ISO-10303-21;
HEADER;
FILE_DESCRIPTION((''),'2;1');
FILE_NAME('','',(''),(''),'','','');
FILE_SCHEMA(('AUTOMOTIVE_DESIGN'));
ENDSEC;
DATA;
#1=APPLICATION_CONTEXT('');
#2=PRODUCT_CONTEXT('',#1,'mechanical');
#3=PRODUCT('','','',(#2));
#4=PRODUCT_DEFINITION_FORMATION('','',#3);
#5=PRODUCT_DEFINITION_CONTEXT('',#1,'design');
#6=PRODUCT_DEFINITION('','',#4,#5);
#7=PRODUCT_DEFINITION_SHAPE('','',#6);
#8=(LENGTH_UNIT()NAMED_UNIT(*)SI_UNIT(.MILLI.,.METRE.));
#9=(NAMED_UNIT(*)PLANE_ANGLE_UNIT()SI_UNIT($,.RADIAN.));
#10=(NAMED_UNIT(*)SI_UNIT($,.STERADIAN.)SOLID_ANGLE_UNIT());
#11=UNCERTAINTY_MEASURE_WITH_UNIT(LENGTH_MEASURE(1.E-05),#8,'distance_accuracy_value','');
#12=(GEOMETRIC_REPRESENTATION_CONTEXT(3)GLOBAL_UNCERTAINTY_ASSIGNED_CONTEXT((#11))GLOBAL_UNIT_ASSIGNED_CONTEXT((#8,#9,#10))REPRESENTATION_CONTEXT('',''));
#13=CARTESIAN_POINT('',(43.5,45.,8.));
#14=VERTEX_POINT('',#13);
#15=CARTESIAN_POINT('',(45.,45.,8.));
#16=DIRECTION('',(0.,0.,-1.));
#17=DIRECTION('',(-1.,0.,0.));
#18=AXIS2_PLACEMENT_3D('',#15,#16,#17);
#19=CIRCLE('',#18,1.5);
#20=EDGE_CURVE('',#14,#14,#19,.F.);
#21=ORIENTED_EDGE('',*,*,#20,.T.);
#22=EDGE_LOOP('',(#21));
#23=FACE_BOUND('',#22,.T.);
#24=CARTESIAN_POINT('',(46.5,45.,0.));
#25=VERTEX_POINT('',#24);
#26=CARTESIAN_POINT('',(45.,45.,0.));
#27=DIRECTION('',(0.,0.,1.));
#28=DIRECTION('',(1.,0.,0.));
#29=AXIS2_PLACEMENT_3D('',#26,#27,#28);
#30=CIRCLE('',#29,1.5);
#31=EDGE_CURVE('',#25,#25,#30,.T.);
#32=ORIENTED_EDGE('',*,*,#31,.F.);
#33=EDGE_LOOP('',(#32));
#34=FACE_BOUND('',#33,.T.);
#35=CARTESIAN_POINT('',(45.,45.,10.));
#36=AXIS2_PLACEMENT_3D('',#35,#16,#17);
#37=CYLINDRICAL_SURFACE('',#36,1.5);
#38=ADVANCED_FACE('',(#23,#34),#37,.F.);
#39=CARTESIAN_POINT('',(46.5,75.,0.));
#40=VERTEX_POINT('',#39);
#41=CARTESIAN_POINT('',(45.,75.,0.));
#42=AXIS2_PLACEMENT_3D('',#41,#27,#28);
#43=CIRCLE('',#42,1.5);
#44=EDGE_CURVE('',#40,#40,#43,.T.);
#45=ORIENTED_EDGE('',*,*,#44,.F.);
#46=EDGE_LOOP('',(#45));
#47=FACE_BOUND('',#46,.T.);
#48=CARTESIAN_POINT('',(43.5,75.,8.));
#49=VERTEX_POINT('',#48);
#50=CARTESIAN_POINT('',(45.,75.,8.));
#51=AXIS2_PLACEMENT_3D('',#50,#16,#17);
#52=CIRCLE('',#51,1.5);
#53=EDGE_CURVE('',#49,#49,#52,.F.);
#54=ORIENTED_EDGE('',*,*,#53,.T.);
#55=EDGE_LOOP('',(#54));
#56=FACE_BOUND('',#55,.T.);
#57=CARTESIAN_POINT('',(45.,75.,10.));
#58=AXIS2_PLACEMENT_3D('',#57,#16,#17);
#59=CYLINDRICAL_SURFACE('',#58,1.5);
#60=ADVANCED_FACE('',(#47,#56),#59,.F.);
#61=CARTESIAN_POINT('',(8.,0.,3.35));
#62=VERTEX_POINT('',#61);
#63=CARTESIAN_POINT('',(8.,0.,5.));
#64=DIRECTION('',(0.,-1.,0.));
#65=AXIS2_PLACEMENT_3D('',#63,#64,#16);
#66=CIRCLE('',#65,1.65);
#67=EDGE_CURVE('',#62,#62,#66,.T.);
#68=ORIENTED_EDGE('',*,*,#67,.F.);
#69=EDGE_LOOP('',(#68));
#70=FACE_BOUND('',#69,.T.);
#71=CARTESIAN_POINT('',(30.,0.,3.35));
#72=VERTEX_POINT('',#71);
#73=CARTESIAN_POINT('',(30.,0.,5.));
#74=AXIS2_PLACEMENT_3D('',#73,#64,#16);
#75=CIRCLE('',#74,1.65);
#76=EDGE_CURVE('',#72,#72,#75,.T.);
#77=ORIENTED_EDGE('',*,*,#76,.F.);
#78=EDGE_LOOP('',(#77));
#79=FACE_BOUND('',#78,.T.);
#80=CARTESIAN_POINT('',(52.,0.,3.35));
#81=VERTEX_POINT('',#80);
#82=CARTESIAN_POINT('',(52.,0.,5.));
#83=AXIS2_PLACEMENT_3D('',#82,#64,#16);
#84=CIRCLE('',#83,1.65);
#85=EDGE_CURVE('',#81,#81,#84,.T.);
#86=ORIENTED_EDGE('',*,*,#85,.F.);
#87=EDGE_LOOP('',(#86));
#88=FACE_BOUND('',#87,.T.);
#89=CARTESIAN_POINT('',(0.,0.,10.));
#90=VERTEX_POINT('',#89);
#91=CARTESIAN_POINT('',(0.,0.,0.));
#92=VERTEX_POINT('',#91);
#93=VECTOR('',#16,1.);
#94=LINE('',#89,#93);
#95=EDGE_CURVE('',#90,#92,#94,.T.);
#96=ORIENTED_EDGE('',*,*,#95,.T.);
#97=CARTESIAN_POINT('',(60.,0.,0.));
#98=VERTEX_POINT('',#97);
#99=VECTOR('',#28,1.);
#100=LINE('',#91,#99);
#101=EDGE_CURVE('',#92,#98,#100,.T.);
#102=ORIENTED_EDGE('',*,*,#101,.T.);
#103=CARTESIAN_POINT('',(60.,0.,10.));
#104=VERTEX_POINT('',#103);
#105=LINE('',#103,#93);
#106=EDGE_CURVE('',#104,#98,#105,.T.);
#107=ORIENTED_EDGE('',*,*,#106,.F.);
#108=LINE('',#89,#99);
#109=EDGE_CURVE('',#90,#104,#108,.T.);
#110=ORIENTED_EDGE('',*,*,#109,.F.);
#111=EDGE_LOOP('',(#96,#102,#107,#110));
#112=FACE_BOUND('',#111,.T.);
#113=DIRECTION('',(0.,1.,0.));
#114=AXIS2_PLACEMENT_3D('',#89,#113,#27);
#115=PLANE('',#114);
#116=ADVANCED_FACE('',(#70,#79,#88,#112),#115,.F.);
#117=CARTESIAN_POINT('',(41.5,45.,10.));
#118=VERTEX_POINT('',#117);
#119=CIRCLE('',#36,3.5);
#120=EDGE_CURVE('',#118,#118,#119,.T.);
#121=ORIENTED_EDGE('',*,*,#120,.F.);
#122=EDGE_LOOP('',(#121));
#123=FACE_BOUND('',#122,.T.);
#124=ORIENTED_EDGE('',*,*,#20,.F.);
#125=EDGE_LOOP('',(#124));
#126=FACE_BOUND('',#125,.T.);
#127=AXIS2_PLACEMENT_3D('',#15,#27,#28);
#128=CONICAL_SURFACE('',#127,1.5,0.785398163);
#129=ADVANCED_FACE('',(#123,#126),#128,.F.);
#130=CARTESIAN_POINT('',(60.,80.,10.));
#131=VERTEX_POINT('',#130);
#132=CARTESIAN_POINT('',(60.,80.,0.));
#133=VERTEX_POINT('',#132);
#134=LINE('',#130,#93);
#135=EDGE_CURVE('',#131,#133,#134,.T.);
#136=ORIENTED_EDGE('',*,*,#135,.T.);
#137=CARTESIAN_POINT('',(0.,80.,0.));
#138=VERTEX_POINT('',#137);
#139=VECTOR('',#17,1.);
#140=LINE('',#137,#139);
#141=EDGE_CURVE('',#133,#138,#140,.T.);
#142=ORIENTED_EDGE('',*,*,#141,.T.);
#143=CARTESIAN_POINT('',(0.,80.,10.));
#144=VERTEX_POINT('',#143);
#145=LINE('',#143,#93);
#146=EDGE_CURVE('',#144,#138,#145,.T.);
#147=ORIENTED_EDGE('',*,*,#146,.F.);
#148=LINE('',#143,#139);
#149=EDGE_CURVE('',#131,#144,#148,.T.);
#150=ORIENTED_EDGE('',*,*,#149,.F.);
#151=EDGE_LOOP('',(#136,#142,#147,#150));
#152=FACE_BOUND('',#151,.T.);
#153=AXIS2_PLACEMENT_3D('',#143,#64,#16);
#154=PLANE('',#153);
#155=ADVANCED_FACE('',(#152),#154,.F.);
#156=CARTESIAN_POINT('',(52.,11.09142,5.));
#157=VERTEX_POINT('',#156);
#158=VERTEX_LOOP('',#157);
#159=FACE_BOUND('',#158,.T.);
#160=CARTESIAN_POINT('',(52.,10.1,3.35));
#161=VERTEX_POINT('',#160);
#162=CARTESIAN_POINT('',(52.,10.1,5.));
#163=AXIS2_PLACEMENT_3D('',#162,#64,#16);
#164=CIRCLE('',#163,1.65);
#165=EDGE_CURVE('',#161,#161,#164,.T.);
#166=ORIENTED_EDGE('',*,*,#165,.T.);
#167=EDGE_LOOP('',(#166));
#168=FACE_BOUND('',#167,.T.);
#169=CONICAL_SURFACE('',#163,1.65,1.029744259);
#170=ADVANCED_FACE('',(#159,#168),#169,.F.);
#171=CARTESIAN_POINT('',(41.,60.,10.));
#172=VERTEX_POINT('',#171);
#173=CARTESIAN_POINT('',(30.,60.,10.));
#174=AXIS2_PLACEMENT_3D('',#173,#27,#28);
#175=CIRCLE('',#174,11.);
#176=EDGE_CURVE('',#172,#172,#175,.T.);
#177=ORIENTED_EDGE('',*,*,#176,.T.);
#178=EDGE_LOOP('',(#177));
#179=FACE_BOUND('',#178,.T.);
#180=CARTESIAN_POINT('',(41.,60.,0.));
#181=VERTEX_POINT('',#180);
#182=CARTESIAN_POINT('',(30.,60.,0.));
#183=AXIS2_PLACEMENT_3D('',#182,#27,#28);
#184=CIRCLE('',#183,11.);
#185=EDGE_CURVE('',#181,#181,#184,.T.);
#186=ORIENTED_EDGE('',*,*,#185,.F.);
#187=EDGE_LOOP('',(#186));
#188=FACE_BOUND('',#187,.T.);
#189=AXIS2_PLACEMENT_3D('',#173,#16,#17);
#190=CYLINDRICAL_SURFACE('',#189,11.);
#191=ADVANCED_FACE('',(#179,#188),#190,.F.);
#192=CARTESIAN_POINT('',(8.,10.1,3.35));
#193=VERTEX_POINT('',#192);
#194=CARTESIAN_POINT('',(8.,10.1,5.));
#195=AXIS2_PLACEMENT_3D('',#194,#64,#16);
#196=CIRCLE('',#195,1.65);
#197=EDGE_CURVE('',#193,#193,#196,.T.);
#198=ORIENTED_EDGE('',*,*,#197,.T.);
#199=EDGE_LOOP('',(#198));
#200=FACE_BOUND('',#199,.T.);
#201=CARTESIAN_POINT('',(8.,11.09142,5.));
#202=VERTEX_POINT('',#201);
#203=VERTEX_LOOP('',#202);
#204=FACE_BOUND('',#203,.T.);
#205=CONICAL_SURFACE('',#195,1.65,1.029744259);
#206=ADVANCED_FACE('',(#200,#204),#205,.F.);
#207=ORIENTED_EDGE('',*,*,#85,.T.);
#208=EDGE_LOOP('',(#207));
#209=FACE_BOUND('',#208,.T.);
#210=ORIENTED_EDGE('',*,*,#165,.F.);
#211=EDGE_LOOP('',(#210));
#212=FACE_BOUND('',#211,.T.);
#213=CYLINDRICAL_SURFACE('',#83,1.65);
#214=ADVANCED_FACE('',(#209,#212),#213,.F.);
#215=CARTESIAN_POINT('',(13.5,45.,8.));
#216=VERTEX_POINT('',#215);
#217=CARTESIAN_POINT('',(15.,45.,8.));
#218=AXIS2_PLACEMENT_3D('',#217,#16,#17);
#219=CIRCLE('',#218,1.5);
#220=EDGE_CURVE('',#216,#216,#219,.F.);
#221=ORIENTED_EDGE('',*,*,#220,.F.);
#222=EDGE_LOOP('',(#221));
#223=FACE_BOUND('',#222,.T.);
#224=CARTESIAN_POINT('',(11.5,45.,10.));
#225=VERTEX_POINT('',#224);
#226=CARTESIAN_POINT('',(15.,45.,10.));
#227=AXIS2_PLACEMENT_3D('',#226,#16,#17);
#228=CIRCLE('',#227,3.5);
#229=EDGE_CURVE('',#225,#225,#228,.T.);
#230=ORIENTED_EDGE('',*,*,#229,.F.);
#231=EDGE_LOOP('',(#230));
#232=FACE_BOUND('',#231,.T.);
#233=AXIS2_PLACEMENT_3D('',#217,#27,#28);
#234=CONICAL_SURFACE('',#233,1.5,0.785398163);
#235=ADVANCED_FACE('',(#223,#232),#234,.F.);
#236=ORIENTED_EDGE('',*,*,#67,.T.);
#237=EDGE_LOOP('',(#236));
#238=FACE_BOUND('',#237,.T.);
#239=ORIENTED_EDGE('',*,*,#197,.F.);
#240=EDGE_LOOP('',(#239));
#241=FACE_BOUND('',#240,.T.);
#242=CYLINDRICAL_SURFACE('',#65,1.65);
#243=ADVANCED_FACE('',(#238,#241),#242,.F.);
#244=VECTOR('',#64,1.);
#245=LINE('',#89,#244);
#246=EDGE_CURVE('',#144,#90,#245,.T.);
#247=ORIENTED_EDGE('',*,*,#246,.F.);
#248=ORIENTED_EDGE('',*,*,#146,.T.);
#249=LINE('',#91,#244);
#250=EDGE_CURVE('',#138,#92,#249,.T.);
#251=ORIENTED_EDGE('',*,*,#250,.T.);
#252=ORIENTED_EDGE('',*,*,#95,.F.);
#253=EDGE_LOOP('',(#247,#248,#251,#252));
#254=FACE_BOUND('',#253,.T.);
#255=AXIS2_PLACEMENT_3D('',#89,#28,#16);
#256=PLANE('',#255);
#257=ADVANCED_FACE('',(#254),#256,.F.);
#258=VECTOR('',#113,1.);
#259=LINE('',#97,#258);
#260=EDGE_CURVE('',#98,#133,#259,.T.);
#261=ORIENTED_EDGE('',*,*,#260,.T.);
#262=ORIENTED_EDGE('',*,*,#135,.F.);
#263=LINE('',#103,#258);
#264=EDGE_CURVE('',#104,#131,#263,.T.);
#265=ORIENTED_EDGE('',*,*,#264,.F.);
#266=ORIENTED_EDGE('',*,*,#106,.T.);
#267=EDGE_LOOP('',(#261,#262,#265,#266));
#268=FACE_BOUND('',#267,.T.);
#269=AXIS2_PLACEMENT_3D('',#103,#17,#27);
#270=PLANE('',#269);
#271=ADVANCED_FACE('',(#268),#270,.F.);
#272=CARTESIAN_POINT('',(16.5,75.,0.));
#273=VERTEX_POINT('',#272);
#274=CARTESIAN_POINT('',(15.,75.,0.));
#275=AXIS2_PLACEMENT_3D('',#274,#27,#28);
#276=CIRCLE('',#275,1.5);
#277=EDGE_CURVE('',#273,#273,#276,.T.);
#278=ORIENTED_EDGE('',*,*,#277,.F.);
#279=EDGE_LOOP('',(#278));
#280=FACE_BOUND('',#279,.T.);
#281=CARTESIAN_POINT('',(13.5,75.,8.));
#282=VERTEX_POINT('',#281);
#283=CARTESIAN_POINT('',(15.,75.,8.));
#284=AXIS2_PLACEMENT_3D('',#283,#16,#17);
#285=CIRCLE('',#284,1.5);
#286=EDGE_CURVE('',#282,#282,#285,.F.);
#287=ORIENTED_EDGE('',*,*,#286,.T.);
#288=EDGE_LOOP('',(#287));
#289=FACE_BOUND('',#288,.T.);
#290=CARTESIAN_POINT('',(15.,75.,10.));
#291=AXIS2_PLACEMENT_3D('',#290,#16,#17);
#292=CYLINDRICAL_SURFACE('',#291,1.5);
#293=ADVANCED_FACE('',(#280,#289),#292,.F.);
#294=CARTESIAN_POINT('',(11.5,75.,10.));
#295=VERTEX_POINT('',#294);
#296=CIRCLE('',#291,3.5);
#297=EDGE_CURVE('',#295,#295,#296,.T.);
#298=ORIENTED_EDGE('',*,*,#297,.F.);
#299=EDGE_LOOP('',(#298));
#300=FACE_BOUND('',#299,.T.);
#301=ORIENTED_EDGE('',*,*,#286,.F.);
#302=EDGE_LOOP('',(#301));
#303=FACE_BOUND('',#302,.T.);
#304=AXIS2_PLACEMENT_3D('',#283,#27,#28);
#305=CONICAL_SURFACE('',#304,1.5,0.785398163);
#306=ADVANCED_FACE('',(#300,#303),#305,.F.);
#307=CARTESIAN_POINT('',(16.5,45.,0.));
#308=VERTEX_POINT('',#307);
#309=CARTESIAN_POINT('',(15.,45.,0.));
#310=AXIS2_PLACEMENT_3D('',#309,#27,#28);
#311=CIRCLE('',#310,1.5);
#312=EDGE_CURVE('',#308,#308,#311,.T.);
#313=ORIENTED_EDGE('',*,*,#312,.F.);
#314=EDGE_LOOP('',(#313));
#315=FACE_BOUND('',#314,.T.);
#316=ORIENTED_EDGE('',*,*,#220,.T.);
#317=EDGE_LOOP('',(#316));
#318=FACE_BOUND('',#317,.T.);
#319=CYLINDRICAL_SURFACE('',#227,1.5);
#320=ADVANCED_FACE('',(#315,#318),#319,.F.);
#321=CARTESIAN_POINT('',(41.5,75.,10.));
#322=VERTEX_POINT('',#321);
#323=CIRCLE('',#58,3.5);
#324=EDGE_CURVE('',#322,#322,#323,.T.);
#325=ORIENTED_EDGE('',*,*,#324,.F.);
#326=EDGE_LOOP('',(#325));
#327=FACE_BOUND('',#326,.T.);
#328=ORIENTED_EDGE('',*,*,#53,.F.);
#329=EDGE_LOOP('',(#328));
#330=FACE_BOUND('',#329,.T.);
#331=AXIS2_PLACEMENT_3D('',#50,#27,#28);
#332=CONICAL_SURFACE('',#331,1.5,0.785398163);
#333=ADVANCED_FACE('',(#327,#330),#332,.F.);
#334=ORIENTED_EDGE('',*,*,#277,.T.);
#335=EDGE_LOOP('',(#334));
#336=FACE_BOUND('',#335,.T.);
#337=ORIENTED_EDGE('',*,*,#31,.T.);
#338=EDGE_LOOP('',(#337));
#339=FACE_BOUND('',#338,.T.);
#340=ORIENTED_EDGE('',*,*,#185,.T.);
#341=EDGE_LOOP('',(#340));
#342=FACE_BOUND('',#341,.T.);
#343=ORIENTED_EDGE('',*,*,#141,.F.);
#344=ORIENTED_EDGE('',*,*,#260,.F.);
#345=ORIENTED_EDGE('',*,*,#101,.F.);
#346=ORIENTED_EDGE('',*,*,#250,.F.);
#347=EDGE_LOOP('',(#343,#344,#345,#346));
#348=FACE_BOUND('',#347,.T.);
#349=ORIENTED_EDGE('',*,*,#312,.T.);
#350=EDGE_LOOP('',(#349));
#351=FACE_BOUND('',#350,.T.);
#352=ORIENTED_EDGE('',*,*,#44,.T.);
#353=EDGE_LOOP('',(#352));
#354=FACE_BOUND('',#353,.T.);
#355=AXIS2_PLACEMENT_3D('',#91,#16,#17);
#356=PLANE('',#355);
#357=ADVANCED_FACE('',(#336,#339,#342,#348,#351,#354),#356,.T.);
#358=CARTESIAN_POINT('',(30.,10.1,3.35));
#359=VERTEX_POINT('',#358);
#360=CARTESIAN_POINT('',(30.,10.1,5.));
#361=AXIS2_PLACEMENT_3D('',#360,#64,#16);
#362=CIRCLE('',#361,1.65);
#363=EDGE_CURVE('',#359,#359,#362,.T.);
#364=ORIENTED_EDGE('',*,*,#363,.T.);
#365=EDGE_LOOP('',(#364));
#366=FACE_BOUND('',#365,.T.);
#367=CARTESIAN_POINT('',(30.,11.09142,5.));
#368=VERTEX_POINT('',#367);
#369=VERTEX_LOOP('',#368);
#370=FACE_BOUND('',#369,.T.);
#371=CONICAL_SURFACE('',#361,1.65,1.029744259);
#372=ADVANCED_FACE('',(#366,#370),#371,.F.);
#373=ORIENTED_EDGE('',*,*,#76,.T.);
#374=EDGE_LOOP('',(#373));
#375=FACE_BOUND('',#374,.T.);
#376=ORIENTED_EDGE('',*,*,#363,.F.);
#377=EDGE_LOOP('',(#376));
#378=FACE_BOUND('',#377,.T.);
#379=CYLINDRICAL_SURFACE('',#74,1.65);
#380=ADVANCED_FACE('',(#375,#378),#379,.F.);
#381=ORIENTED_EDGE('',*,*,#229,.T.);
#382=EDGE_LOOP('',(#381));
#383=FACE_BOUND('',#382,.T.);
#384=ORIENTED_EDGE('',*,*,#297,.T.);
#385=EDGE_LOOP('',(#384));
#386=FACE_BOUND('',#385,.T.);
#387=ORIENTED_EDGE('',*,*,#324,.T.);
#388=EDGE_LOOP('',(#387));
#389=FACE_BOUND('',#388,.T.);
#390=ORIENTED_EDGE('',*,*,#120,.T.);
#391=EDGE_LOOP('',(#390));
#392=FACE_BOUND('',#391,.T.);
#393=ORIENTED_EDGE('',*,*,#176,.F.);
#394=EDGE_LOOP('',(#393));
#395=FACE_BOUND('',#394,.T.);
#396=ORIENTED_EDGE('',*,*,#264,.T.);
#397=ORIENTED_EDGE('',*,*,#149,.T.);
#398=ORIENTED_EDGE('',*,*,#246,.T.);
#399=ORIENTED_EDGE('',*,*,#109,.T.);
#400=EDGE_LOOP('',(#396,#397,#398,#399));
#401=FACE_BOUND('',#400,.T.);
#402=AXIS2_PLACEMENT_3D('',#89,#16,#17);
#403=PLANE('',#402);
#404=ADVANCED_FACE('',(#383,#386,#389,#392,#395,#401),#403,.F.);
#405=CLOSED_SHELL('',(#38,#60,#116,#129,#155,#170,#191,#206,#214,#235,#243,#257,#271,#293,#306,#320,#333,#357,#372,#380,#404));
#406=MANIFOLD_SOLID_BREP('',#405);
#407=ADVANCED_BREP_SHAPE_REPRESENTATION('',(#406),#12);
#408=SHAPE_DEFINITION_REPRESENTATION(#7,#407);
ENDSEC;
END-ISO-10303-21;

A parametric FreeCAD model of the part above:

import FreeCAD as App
import Part
import Sketcher
from FreeCAD import Vector
Q = App.Units.Quantity


def edges_at(feature, points):
    """Names of the edges that pass closest to the given points."""
    edges = feature.Shape.Edges
    near = lambda p: min(range(len(edges)), key=lambda i: edges[i].distToShape(Part.Vertex(*p))[0])
    return sorted({f"Edge{near(p) + 1}" for p in points})


def add_polygon(sketch, points):
    """Adds a closed chain of lines whose ends are joined by coincident constraints."""
    first, n = sketch.GeometryCount, len(points)
    for a, b in zip(points, points[1:] + points[:1]):
        sketch.addGeometry(Part.LineSegment(App.Vector(*a, 0), App.Vector(*b, 0)), False)
    for i in range(n):
        sketch.addConstraint(Sketcher.Constraint("Coincident", first + i, 2, first + (i + 1) % n, 1))

doc = App.newDocument("Part")
body = doc.addObject("PartDesign::Body", "Body")

# Sketch on XY plane
sketch1 = body.newObject("Sketcher::SketchObject", "Sketch")
sketch1.AttachmentSupport = (doc.getObject("XY_Plane"), [""])
sketch1.MapMode = "FlatFace"
add_polygon(sketch1, [(0, 80), (0, 0), (60, 0), (60, 80)])  # lines 0-3
sketch1.addGeometry(Part.Circle(Vector(15, 45, 0), Vector(0, 0, 1), 1.5), False)  # 4
sketch1.addGeometry(Part.Circle(Vector(45, 45, 0), Vector(0, 0, 1), 1.5), False)  # 5
sketch1.addGeometry(Part.Circle(Vector(15, 75, 0), Vector(0, 0, 1), 1.5), False)  # 6
sketch1.addGeometry(Part.Circle(Vector(30, 60, 0), Vector(0, 0, 1), 11), False)  # 7
sketch1.addGeometry(Part.Circle(Vector(45, 75, 0), Vector(0, 0, 1), 1.5), False)  # 8
sketch1.addConstraint([
    Sketcher.Constraint("Vertical", 0),
    Sketcher.Constraint("Horizontal", 1),
    Sketcher.Constraint("Vertical", 2),
    Sketcher.Constraint("Horizontal", 3),
    Sketcher.Constraint("Coincident", 0, 2, -1, 1),
    Sketcher.Constraint("Equal", 4, 5),
    Sketcher.Constraint("Equal", 5, 6),
    Sketcher.Constraint("Equal", 6, 8),
    Sketcher.Constraint("Horizontal", 4, 3, 5, 3),
    Sketcher.Constraint("Horizontal", 6, 3, 8, 3),
    Sketcher.Constraint("Vertical", 4, 3, 6, 3),
    Sketcher.Constraint("Vertical", 5, 3, 8, 3),
    Sketcher.Constraint("Diameter", 4, Q("3 mm")),
    Sketcher.Constraint("Diameter", 7, Q("22 mm")),
    Sketcher.Constraint("DistanceX", 1, 1, 1, 2, Q("60 mm")),
    Sketcher.Constraint("DistanceY", 0, 2, 0, 1, Q("80 mm")),
    Sketcher.Constraint("DistanceX", -1, 1, 4, 3, Q("15 mm")),
    Sketcher.Constraint("DistanceY", -1, 1, 4, 3, Q("45 mm")),
    Sketcher.Constraint("DistanceX", -1, 1, 5, 3, Q("45 mm")),
    Sketcher.Constraint("DistanceY", -1, 1, 6, 3, Q("75 mm")),
    Sketcher.Constraint("DistanceX", -1, 1, 7, 3, Q("30 mm")),
    Sketcher.Constraint("DistanceY", -1, 1, 7, 3, Q("60 mm")),
])
pad1 = body.newObject("PartDesign::Pad", "Pad")
pad1.Profile = sketch1
pad1.Length = 10

# Sketch on XZ plane
sketch2 = body.newObject("Sketcher::SketchObject", "Sketch001")
sketch2.AttachmentSupport = (doc.getObject("XZ_Plane"), [""])
sketch2.MapMode = "FlatFace"
sketch2.addGeometry([
    Part.Circle(Vector(8, 5, 0), Vector(0, 0, 1), 1.6),
    Part.Circle(Vector(30, 5, 0), Vector(0, 0, 1), 1.6),
    Part.Circle(Vector(52, 5, 0), Vector(0, 0, 1), 1.6),
], False)
sketch2.addConstraint([
    Sketcher.Constraint("Equal", 0, 1),
    Sketcher.Constraint("Equal", 1, 2),
    Sketcher.Constraint("Horizontal", 0, 3, 1, 3),
    Sketcher.Constraint("Horizontal", 1, 3, 2, 3),
    Sketcher.Constraint("Diameter", 0, Q("3.3 mm")),
    Sketcher.Constraint("DistanceX", -1, 1, 0, 3, Q("8 mm")),
    Sketcher.Constraint("DistanceY", -1, 1, 0, 3, Q("5 mm")),
    Sketcher.Constraint("DistanceX", -1, 1, 1, 3, Q("30 mm")),
    Sketcher.Constraint("DistanceX", -1, 1, 2, 3, Q("52 mm")),
])
doc.recompute()
hole = body.newObject("PartDesign::Hole", "Hole")
hole.Profile = sketch2
hole.ThreadType = "None"
hole.Diameter = 3.3
hole.DepthType = "Dimension"
hole.Depth = 10.1
hole.DrillPoint = "Angled"
hole.DrillPointAngle = 118
doc.recompute()

chamfer = body.newObject("PartDesign::Chamfer", "Chamfer")
chamfer.Base = (hole, edges_at(hole, [
    (13.5, 75, 10),
    (43.5, 75, 10),
    (43.5, 45, 10),
    (13.5, 45, 10),
]))
chamfer.Size = 2

doc.recompute()
